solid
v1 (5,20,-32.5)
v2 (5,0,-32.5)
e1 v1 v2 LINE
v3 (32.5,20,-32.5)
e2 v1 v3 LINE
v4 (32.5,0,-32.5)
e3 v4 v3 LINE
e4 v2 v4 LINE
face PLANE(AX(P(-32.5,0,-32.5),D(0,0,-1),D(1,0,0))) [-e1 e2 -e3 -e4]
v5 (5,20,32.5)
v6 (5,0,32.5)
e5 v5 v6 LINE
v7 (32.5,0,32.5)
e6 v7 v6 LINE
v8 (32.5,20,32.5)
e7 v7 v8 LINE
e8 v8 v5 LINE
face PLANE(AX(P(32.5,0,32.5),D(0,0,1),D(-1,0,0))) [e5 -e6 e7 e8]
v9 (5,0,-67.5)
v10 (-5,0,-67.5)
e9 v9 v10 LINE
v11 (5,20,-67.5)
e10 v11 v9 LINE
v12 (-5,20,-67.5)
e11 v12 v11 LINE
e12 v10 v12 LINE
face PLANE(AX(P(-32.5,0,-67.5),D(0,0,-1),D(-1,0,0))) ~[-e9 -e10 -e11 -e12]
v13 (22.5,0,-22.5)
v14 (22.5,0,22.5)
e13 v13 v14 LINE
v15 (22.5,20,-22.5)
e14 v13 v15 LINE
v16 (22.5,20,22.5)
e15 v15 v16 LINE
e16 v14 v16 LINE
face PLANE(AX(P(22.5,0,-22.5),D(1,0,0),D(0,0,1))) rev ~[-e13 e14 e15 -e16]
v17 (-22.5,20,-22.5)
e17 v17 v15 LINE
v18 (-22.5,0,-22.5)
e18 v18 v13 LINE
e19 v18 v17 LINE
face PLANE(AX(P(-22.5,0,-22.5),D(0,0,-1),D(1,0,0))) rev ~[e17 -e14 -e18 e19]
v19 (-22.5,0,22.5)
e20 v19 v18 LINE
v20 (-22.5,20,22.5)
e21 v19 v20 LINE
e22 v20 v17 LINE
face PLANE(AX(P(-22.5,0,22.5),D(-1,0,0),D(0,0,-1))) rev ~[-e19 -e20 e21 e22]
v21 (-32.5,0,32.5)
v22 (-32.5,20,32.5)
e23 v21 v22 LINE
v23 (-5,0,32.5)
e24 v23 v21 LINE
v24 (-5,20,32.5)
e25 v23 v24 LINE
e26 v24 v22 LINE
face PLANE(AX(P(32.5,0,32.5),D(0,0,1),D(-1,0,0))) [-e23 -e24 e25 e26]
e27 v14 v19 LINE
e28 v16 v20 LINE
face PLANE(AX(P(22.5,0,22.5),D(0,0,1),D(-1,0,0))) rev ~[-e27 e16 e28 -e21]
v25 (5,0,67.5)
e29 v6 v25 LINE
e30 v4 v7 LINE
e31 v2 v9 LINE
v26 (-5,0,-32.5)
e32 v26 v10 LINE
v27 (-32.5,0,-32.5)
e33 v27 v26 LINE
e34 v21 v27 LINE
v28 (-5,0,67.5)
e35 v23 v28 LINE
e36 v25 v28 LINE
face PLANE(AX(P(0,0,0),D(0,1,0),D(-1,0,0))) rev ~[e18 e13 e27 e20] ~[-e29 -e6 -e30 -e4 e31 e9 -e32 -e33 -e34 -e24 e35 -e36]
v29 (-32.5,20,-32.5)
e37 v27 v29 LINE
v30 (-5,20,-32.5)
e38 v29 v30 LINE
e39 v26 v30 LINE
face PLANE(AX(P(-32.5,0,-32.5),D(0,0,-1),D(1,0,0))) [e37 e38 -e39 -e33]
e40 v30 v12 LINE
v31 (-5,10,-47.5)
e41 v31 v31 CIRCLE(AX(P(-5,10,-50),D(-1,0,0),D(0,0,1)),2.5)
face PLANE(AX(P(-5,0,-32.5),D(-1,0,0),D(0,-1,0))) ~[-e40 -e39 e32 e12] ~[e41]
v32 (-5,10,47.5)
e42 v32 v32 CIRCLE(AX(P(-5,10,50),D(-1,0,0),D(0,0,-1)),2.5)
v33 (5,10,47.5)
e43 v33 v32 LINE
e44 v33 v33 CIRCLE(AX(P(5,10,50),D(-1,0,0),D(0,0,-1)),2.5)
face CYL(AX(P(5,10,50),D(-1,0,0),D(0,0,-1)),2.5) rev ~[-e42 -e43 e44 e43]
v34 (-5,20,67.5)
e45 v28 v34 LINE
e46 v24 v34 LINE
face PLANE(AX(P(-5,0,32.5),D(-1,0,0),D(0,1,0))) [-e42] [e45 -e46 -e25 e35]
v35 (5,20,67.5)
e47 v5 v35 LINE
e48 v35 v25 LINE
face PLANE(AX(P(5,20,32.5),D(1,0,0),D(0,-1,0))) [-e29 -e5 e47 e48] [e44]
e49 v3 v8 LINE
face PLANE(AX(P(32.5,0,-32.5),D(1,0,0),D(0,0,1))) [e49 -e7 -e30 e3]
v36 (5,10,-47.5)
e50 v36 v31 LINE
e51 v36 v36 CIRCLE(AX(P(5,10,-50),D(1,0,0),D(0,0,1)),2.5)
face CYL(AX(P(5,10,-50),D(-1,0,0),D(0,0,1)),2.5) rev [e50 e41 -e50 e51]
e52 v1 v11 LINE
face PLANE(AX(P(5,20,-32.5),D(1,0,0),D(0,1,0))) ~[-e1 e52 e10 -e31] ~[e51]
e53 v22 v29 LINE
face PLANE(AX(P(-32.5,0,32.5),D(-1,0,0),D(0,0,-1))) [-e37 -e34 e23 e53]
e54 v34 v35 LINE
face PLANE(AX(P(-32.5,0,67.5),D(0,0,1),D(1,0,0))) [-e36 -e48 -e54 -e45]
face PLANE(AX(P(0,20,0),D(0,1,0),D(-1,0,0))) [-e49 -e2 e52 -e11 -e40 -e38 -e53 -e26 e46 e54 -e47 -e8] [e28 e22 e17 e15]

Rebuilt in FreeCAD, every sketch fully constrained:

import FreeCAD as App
import Part
import Sketcher

doc = App.newDocument("Part")
params = doc.addObject("Spreadsheet::Sheet", "Params")
for row, (alias, value) in enumerate([
    ("sketch1_width", "65 mm"),
    ("sketch1_width2", "45 mm"),
    ("pad1_length", "20 mm"),
    ("sketch2_width", "10 mm"),
    ("sketch2_height", "20 mm"),
    ("pad2_length", "35 mm"),
    ("sketch3_diameter", "5 mm"),
    ("hole_diameter", "5 mm"),
], start=1):
    params.set(f"A{row}", alias)
    params.set(f"B{row}", "=" + value)
    params.setAlias(f"B{row}", alias)

body = doc.addObject("PartDesign::Body", "Body")

# Sketch on XZ plane
sketch1 = body.newObject("Sketcher::SketchObject", "Sketch")
sketch1.AttachmentSupport = (doc.getObject("XZ_Plane"), [""])
sketch1.MapMode = "FlatFace"
sketch1.addGeometry([
    Part.LineSegment(App.Vector(-32, 32, 0), App.Vector(32, 32, 0)),  # 0
    Part.LineSegment(App.Vector(32, 32, 0), App.Vector(32, -32, 0)),  # 1
    Part.LineSegment(App.Vector(32, -32, 0), App.Vector(-32, -32, 0)),  # 2
    Part.LineSegment(App.Vector(-32, -32, 0), App.Vector(-32, 32, 0)),  # 3
    Part.LineSegment(App.Vector(22, -22, 0), App.Vector(22, 22, 0)),  # 4
    Part.LineSegment(App.Vector(22, 22, 0), App.Vector(-22, 22, 0)),  # 5
    Part.LineSegment(App.Vector(-22, 22, 0), App.Vector(-22, -22, 0)),  # 6
    Part.LineSegment(App.Vector(-22, -22, 0), App.Vector(22, -22, 0)),  # 7
], False)
sketch1.addConstraint([
    Sketcher.Constraint("Coincident", 0, 2, 1, 1),
    Sketcher.Constraint("Coincident", 1, 2, 2, 1),
    Sketcher.Constraint("Coincident", 2, 2, 3, 1),
    Sketcher.Constraint("Coincident", 3, 2, 0, 1),
    Sketcher.Constraint("Coincident", 4, 2, 5, 1),
    Sketcher.Constraint("Coincident", 5, 2, 6, 1),
    Sketcher.Constraint("Coincident", 6, 2, 7, 1),
    Sketcher.Constraint("Coincident", 7, 2, 4, 1),
    Sketcher.Constraint("Horizontal", 0),
    Sketcher.Constraint("Vertical", 1),
    Sketcher.Constraint("Horizontal", 2),
    Sketcher.Constraint("Vertical", 3),
    Sketcher.Constraint("Vertical", 4),
    Sketcher.Constraint("Horizontal", 5),
    Sketcher.Constraint("Vertical", 6),
    Sketcher.Constraint("Horizontal", 7),
    Sketcher.Constraint("Symmetric", 0, 2, 2, 2, -1, 1),
    Sketcher.Constraint("Symmetric", 4, 2, 6, 2, -1, 1),
    Sketcher.Constraint("Equal", 2, 1),
    Sketcher.Constraint("Equal", 7, 4),
    Sketcher.Constraint("DistanceX", 0, 1, 0, 2, 65.0),
    Sketcher.Constraint("DistanceX", 5, 2, 5, 1, 45.0),
])
sketch1.setExpression("Constraints[20]", "Params.sketch1_width")
sketch1.setExpression("Constraints[21]", "Params.sketch1_width2")
pad1 = body.newObject("PartDesign::Pad", "Pad")
pad1.Profile = sketch1
pad1.setExpression("Length", "Params.pad1_length")
pad1.Reversed = True

# Sketch on XY plane
sketch2 = body.newObject("Sketcher::SketchObject", "Sketch001")
sketch2.AttachmentSupport = (doc.getObject("XY_Plane"), [""])
sketch2.MapMode = "FlatFace"
sketch2.AttachmentOffset = App.Placement(App.Vector(0, 0, 32.5), App.Rotation())
sketch2.addGeometry([
    Part.LineSegment(App.Vector(5, 20, 0), App.Vector(-5, 20, 0)),
    Part.LineSegment(App.Vector(-5, 20, 0), App.Vector(-5, 0, 0)),
    Part.LineSegment(App.Vector(-5, 0, 0), App.Vector(5, 0, 0)),
    Part.LineSegment(App.Vector(5, 0, 0), App.Vector(5, 20, 0)),
], False)
sketch2.addConstraint([
    Sketcher.Constraint("Coincident", 0, 2, 1, 1),
    Sketcher.Constraint("Coincident", 1, 2, 2, 1),
    Sketcher.Constraint("Coincident", 2, 2, 3, 1),
    Sketcher.Constraint("Coincident", 3, 2, 0, 1),
    Sketcher.Constraint("Horizontal", 0),
    Sketcher.Constraint("Vertical", 1),
    Sketcher.Constraint("Horizontal", 2),
    Sketcher.Constraint("Vertical", 3),
    Sketcher.Constraint("Symmetric", 1, 2, 2, 2, -1, 1),
    Sketcher.Constraint("DistanceX", 0, 2, 0, 1, 10.0),
    Sketcher.Constraint("DistanceY", 1, 2, 1, 1, 20.0),
])
sketch2.setExpression("Constraints[9]", "Params.sketch2_width")
sketch2.setExpression("Constraints[10]", "Params.sketch2_height")
pad2 = body.newObject("PartDesign::Pad", "Pad001")
pad2.Profile = sketch2
pad2.setExpression("Length", "Params.pad2_length")

# Sketch on YZ plane
sketch3 = body.newObject("Sketcher::SketchObject", "Sketch002")
sketch3.AttachmentSupport = (doc.getObject("YZ_Plane"), [""])
sketch3.MapMode = "FlatFace"
sketch3.AttachmentOffset = App.Placement(App.Vector(0, 0, 5), App.Rotation())
sketch3.addGeometry(Part.Circle(App.Vector(10, 50, 0), App.Vector(0, 0, 1), 2.5), False)
sketch3.addConstraint([
    Sketcher.Constraint("Diameter", 0, 5.0),
    Sketcher.Constraint("DistanceX", -1, 1, 0, 3, 10.0),
    Sketcher.Constraint("DistanceY", -1, 1, 0, 3, 50.0),
])
sketch3.setExpression("Constraints[0]", "Params.sketch3_diameter")
doc.recompute()
hole = body.newObject("PartDesign::Hole", "Hole")
hole.Profile = sketch3
hole.ThreadType = "None"
hole.setExpression("Diameter", "Params.hole_diameter")
hole.DepthType = "ThroughAll"
doc.recompute()

mirrored = body.newObject("PartDesign::Mirrored", "Mirrored")
mirrored.Originals = [pad2, hole]
mirrored.MirrorPlane = (doc.getObject("XY_Plane"), [""])
body.Tip = mirrored

doc.recompute()
